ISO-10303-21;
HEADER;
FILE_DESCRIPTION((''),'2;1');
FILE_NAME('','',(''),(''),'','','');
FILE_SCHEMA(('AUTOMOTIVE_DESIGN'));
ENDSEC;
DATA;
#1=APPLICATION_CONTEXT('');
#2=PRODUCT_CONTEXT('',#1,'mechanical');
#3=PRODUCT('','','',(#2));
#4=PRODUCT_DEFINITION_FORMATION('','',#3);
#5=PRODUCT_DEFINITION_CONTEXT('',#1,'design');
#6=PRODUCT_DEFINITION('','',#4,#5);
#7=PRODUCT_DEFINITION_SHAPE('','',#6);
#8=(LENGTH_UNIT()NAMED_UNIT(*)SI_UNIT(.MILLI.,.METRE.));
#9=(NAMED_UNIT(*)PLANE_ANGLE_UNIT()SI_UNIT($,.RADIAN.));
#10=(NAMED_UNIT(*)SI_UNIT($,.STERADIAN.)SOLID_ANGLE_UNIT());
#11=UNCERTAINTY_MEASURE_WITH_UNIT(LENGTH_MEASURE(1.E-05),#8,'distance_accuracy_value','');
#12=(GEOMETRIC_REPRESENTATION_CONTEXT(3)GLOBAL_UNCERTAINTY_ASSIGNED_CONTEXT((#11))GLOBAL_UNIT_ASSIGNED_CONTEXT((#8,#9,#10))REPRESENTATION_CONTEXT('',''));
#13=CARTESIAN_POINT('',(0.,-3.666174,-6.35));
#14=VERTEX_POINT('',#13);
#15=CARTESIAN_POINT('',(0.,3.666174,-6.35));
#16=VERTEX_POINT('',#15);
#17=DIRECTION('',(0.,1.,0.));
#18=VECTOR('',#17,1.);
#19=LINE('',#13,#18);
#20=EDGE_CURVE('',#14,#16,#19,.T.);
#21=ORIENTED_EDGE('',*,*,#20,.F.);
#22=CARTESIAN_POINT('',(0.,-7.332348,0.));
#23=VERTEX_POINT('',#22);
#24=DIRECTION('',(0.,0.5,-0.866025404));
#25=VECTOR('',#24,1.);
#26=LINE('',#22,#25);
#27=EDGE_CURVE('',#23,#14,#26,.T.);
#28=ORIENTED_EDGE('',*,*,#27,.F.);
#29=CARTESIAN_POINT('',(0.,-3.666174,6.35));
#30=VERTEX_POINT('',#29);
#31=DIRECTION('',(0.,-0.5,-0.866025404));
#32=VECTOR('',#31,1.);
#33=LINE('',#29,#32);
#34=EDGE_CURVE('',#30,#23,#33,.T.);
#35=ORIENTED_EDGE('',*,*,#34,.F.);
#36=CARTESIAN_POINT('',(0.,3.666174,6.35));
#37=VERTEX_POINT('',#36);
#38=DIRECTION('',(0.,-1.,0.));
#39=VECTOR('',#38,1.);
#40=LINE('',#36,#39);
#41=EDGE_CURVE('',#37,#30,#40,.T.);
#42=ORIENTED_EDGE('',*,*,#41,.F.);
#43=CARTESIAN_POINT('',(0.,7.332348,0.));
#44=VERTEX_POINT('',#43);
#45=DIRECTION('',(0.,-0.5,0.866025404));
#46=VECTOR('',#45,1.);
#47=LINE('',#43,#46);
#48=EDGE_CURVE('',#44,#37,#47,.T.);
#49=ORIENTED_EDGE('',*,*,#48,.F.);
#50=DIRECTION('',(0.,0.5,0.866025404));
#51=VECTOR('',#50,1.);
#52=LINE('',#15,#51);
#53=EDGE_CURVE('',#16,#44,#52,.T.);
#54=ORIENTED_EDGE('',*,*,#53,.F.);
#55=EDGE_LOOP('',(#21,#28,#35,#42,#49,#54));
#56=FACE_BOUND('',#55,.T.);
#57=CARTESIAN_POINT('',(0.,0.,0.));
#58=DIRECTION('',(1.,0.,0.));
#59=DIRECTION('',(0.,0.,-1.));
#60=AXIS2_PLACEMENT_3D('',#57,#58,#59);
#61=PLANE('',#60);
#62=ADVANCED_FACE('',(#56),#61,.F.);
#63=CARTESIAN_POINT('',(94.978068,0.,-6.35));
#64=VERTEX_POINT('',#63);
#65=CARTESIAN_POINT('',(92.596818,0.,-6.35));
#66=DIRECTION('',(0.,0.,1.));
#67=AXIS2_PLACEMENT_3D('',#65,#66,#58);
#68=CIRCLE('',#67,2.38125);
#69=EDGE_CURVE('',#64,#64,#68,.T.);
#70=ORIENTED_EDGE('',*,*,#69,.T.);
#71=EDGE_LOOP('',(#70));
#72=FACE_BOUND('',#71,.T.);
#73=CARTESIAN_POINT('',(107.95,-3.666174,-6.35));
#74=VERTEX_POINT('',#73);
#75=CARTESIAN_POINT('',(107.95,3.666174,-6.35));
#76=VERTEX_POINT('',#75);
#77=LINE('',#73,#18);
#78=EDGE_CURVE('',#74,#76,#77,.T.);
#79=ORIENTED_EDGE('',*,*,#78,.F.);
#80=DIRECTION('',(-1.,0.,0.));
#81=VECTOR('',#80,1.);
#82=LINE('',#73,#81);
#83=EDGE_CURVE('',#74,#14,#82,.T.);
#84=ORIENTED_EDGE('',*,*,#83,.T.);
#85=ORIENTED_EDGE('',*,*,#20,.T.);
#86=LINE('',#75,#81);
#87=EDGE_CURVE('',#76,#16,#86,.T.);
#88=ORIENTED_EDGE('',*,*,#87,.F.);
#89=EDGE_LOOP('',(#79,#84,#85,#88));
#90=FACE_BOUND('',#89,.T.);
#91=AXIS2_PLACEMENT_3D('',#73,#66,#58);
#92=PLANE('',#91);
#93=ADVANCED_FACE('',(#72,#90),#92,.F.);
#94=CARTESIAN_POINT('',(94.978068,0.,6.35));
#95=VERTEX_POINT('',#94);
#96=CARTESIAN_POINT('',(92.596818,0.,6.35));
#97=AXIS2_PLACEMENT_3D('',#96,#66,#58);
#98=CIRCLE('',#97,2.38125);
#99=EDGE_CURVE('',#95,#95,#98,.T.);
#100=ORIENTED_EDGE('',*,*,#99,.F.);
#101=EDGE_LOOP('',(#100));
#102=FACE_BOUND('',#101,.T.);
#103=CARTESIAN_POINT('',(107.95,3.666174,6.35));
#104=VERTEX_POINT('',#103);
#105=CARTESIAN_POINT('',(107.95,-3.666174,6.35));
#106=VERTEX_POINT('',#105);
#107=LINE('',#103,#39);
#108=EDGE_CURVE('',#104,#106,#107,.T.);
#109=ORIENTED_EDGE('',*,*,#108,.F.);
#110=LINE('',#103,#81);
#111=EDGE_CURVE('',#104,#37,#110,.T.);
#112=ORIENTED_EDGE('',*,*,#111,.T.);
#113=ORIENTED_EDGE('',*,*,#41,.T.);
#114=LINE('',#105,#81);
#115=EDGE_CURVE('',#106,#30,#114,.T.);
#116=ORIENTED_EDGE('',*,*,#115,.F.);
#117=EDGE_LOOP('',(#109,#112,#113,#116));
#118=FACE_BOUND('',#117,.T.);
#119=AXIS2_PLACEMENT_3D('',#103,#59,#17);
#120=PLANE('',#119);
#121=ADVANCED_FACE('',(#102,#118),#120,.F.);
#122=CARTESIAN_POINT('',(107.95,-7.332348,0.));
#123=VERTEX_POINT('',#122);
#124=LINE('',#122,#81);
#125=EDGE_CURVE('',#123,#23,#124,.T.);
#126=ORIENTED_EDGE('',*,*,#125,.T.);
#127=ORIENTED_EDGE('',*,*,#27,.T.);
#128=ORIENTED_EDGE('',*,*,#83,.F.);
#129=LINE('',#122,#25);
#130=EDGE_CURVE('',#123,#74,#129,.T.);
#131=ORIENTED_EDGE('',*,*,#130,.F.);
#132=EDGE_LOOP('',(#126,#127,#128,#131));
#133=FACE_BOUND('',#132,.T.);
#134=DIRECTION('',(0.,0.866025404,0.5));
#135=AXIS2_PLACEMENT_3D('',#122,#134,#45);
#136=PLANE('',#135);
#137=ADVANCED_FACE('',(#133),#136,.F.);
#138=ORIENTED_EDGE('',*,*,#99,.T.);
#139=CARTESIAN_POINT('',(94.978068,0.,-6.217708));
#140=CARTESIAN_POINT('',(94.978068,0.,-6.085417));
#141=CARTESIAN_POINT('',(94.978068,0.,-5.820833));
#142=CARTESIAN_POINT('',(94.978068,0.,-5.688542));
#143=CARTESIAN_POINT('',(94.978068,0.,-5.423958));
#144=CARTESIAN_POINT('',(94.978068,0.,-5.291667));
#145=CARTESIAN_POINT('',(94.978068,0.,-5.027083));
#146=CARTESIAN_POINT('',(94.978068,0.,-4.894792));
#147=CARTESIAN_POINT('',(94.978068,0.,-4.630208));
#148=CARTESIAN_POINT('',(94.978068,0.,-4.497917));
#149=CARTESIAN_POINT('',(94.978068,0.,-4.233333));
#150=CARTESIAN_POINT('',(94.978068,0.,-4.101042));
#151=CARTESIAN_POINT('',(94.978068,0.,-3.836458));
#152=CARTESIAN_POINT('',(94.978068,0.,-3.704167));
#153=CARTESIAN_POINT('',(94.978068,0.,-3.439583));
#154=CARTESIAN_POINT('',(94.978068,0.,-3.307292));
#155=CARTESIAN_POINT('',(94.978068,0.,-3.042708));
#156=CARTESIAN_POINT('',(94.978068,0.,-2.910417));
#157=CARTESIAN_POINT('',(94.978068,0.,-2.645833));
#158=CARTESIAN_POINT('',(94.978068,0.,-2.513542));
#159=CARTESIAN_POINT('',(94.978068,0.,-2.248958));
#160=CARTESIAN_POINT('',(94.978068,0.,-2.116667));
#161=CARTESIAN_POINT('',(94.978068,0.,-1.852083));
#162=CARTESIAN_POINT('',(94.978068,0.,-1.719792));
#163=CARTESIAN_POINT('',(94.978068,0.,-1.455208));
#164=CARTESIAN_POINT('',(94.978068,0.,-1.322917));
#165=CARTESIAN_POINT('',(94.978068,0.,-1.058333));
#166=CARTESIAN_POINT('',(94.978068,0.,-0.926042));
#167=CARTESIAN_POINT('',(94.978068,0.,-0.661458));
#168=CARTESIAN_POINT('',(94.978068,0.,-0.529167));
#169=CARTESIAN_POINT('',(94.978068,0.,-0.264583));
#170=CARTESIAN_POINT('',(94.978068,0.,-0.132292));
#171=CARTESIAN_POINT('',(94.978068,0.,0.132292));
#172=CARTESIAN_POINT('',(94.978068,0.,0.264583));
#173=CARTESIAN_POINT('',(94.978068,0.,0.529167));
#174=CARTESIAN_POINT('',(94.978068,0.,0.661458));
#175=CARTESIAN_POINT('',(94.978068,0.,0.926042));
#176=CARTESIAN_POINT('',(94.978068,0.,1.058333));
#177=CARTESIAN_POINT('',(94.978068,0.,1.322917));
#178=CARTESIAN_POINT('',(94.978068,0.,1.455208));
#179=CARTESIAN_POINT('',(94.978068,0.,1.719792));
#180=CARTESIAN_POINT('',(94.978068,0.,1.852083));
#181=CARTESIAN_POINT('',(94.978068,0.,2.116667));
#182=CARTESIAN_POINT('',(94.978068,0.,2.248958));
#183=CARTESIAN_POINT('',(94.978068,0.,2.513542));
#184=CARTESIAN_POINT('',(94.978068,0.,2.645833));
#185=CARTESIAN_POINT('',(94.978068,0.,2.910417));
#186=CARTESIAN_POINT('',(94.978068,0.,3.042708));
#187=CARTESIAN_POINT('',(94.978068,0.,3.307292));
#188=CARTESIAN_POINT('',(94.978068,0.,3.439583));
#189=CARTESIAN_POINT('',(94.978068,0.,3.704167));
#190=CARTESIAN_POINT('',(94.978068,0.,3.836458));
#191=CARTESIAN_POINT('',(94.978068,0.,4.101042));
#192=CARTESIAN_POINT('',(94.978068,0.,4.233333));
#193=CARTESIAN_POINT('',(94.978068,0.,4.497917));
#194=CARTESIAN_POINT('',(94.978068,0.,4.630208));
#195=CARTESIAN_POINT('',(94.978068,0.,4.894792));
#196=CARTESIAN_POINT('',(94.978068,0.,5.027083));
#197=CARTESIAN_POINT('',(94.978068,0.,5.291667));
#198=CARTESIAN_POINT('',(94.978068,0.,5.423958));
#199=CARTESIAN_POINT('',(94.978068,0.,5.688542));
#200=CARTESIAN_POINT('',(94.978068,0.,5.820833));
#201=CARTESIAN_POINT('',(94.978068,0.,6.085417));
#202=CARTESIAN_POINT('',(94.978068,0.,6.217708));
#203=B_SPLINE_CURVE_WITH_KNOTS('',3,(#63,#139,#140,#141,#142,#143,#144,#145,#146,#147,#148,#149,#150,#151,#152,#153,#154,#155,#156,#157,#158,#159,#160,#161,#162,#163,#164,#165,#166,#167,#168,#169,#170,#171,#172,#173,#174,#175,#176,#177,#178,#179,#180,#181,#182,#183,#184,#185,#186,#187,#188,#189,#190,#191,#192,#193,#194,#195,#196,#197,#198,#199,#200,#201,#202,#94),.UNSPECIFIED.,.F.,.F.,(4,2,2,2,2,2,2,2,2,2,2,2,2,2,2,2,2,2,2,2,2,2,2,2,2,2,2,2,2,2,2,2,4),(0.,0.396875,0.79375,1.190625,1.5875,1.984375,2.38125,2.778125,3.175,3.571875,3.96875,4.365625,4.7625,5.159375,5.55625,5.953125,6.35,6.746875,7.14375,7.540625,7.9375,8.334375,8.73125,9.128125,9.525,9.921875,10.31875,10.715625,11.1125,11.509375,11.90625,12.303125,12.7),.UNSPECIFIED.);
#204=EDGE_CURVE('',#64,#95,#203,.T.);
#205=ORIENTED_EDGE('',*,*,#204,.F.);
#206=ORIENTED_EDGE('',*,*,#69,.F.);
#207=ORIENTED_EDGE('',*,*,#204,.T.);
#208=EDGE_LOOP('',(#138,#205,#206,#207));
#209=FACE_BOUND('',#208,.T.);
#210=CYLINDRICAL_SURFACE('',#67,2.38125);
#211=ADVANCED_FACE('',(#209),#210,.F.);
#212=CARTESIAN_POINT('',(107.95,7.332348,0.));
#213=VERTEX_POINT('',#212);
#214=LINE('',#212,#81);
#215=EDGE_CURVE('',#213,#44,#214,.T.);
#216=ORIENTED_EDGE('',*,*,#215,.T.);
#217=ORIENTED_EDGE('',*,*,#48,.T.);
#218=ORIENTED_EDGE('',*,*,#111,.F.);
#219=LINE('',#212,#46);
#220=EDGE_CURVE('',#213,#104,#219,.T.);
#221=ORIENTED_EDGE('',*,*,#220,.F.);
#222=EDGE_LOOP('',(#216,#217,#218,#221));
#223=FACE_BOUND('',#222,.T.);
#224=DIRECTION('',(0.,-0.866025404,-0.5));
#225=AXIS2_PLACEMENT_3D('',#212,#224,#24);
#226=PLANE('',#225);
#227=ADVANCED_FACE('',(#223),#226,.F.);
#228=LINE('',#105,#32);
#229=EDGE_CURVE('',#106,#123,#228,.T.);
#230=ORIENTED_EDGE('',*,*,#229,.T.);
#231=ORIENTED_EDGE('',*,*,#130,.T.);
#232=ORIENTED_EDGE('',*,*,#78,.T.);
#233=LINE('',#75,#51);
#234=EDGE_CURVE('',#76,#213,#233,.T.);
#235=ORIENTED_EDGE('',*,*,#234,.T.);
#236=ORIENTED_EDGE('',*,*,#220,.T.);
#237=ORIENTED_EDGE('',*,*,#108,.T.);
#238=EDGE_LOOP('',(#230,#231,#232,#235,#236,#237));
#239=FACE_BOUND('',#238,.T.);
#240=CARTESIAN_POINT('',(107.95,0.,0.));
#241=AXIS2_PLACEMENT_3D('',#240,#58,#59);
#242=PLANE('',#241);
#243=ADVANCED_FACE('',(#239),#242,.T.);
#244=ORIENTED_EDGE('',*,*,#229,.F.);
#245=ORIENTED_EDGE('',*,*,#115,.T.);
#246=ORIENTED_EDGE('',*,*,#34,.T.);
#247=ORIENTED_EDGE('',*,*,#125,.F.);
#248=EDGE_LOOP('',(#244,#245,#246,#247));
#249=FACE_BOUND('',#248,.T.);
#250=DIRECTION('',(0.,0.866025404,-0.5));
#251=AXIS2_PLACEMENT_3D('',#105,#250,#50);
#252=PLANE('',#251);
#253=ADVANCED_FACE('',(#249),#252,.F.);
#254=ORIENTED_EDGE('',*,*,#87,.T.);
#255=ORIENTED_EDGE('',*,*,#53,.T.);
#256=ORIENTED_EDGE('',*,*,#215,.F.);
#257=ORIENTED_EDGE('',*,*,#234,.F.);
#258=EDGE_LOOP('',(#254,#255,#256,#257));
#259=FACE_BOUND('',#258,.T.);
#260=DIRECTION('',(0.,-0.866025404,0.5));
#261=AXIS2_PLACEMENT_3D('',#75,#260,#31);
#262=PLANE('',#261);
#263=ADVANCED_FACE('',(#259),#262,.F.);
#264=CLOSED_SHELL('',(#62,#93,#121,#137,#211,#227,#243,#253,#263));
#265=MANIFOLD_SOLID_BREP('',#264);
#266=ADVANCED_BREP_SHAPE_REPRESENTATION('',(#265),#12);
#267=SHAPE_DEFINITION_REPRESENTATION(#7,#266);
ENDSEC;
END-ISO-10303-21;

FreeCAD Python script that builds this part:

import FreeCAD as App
import Part
import Sketcher
Q = App.Units.Quantity

doc = App.newDocument("Part")
body = doc.addObject("PartDesign::Body", "Body")

# Sketch on YZ plane
sketch1 = body.newObject("Sketcher::SketchObject", "Sketch")
sketch1.AttachmentSupport = (doc.getObject("YZ_Plane"), [""])
sketch1.MapMode = "FlatFace"
sketch1.addGeometry(Part.LineSegment(App.Vector(-4, -6, 0), App.Vector(4, -6, 0)), False)
sketch1.addGeometry(Part.LineSegment(App.Vector(4, -6, 0), App.Vector(7, 0, 0)), False)
sketch1.addGeometry(Part.LineSegment(App.Vector(7, 0, 0), App.Vector(4, 6, 0)), False)
sketch1.addGeometry(Part.LineSegment(App.Vector(4, 6, 0), App.Vector(-4, 6, 0)), False)
sketch1.addGeometry(Part.LineSegment(App.Vector(-4, 6, 0), App.Vector(-7, 0, 0)), False)
sketch1.addGeometry(Part.LineSegment(App.Vector(-7, 0, 0), App.Vector(-4, -6, 0)), False)
sketch1.addConstraint(Sketcher.Constraint("Coincident", 0, 2, 1, 1))
sketch1.addConstraint(Sketcher.Constraint("Coincident", 1, 2, 2, 1))
sketch1.addConstraint(Sketcher.Constraint("Coincident", 2, 2, 3, 1))
sketch1.addConstraint(Sketcher.Constraint("Coincident", 3, 2, 4, 1))
sketch1.addConstraint(Sketcher.Constraint("Coincident", 4, 2, 5, 1))
sketch1.addConstraint(Sketcher.Constraint("Coincident", 5, 2, 0, 1))
sketch1.addConstraint(Sketcher.Constraint("Horizontal", 0))
sketch1.addConstraint(Sketcher.Constraint("Horizontal", 3))
sketch1.addConstraint(Sketcher.Constraint("Symmetric", 0, 2, 3, 2, -1, 1))
sketch1.addConstraint(Sketcher.Constraint("Symmetric", 1, 2, 4, 2, -1, 1))
sketch1.addConstraint(Sketcher.Constraint("PointOnObject", 1, 2, -1))
sketch1.addConstraint(Sketcher.Constraint("Parallel", 2, 5))
sketch1.addConstraint(Sketcher.Constraint("Vertical", 0, 2, 2, 2))
sketch1.addConstraint(Sketcher.Constraint("Angle", 1, Q("60 deg")))
sketch1.addConstraint(Sketcher.Constraint("DistanceY", 0, 2, 2, 2, Q("0.5 in")))
sketch1.addConstraint(Sketcher.Constraint("DistanceX", 0, 1, 0, 2, Q("7.332348 mm")))
pad1 = body.newObject("PartDesign::Pad", "Pad")
pad1.Profile = sketch1
pad1.Length = Q("4.25 in")

# Sketch on XY plane
sketch2 = body.newObject("Sketcher::SketchObject", "Sketch001")
sketch2.AttachmentSupport = (doc.getObject("XY_Plane"), [""])
sketch2.MapMode = "FlatFace"
sketch2.AttachmentOffset = App.Placement(App.Vector(0, 0, 0.25 * 25.4), App.Rotation())
sketch2.addGeometry(Part.Circle(App.Vector(92.6, 0, 0), App.Vector(0, 0, 1), 2.4), False)
sketch2.addConstraint(Sketcher.Constraint("PointOnObject", 0, 3, -1))
sketch2.addConstraint(Sketcher.Constraint("Diameter", 0, Q("0.1875 in")))
sketch2.addConstraint(Sketcher.Constraint("DistanceX", -1, 1, 0, 3, Q("92.596818 mm")))
pocket1 = body.newObject("PartDesign::Pocket", "Pocket")
pocket1.Profile = sketch2
pocket1.Type = "ThroughAll"

doc.recompute()
